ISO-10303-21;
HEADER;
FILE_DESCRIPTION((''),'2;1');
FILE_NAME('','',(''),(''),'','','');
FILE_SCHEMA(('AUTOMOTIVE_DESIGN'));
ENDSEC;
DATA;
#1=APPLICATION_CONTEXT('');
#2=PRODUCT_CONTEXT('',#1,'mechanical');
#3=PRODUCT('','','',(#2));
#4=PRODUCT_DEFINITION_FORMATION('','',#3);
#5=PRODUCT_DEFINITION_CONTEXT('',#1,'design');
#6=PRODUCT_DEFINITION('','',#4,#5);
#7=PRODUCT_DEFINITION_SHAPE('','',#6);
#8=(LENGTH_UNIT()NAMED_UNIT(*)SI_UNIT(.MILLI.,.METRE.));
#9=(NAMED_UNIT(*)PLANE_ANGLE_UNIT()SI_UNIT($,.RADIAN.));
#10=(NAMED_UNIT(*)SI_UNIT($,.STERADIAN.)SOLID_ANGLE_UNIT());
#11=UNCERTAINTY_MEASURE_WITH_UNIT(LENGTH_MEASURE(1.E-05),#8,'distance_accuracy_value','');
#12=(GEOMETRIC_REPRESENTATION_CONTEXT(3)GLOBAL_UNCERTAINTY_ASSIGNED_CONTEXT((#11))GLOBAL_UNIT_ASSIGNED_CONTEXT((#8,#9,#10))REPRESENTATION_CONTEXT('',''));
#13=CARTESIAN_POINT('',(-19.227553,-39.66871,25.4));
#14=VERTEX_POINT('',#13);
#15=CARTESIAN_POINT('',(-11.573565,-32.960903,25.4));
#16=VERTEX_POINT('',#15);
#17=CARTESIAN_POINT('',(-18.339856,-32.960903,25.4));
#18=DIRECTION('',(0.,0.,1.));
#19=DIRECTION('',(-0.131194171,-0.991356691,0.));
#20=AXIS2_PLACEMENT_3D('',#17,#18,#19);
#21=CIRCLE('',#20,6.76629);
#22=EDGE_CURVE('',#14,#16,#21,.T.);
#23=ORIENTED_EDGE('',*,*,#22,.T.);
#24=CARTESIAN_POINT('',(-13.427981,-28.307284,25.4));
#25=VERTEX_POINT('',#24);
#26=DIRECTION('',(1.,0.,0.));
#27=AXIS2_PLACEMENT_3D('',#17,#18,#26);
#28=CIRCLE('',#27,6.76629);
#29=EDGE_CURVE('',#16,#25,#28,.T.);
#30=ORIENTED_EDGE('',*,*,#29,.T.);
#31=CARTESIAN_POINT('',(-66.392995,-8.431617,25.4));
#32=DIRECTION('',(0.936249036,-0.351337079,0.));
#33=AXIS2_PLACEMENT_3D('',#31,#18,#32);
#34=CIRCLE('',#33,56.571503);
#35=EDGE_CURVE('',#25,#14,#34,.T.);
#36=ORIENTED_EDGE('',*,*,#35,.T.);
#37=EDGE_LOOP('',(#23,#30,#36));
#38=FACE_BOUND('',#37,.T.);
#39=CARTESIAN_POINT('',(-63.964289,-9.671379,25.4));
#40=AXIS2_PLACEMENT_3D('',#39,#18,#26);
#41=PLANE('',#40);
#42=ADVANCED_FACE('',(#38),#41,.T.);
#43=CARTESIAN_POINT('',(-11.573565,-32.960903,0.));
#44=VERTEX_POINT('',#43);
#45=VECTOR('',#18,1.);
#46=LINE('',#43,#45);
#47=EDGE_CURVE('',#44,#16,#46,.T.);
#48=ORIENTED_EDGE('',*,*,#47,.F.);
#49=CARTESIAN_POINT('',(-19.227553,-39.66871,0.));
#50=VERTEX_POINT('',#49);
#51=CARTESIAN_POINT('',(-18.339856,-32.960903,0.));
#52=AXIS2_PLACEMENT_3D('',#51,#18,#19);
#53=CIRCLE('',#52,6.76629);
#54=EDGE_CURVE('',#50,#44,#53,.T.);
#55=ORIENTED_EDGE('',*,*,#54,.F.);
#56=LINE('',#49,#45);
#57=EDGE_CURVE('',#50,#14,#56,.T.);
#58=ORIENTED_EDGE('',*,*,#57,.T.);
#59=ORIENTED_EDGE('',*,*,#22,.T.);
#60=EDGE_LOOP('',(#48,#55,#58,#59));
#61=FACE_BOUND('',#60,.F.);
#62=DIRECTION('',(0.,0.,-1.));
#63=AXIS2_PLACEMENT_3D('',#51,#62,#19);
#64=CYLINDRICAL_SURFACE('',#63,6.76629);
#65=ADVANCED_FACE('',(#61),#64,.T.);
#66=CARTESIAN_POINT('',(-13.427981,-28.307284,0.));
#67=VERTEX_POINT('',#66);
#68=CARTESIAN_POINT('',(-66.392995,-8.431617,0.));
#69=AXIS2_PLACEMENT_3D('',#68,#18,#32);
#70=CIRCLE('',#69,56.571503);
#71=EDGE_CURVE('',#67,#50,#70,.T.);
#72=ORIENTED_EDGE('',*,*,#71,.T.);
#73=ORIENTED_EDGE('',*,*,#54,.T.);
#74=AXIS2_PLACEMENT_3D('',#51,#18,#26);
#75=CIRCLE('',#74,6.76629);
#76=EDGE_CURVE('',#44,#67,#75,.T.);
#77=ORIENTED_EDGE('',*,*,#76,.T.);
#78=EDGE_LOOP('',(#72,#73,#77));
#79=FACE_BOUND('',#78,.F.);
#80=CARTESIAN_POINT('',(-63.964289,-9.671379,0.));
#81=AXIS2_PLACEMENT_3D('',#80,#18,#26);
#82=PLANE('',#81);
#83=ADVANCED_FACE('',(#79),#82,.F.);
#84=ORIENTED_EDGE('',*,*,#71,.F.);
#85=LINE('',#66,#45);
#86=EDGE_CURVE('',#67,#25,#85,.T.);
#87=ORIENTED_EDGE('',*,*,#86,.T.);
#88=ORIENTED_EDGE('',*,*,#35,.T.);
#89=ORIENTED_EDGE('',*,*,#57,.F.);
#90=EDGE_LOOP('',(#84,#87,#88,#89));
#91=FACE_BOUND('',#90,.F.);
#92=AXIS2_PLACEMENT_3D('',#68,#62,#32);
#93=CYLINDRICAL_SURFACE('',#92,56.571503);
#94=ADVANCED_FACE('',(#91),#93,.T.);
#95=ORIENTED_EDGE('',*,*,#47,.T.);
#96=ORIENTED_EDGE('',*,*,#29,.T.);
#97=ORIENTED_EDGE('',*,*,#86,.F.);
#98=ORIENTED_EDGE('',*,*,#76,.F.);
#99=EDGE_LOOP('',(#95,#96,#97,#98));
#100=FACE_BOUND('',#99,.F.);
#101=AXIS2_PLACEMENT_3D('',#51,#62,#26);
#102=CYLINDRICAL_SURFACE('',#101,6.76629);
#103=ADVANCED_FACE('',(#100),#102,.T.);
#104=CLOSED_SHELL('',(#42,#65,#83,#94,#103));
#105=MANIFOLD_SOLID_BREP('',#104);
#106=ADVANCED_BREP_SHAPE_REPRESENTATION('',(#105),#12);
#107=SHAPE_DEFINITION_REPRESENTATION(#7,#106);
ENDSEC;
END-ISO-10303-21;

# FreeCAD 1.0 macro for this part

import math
import FreeCAD as App
import Part
import Sketcher
Q = App.Units.Quantity

doc = App.newDocument("Part")
body = doc.addObject("PartDesign::Body", "Body")

# Sketch on XY plane
sketch1 = doc.addObject("Sketcher::SketchObject", "Sketch")
body.addObject(sketch1)
sketch1.AttachmentSupport = (doc.XY_Plane, [""])
sketch1.MapMode = "FlatFace"
sketch1.addGeometry(Part.ArcOfCircle(Part.Circle(App.Vector(-66, -8, 0), App.Vector(0, 0, 1), 57), math.radians(-21), math.radians(326)), False)
sketch1.addGeometry(Part.ArcOfCircle(Part.Circle(App.Vector(-18, -33, 0), App.Vector(0, 0, 1), 7), math.radians(-98), math.radians(0)), False)
sketch1.addGeometry(Part.ArcOfCircle(Part.Circle(App.Vector(-18, -33, 0), App.Vector(0, 0, 1), 7), math.radians(0), math.radians(43)), False)
sketch1.addConstraint(Sketcher.Constraint("Coincident", 0, 2, 1, 1))
sketch1.addConstraint(Sketcher.Constraint("Tangent", 1, 2, 2, 1))
sketch1.addConstraint(Sketcher.Constraint("Coincident", 2, 2, 0, 1))
sketch1.addConstraint(Sketcher.Constraint("Equal", 1, 2))
sketch1.addConstraint(Sketcher.Constraint("Horizontal", 2, 3, 1, 2))
sketch1.addConstraint(Sketcher.Constraint("Radius", 1, 6.76629))
sketch1.addConstraint(Sketcher.Constraint("Radius", 0, 56.571503))
sketch1.addConstraint(Sketcher.Constraint("DistanceY", 0, 2, -1, 1, 39.66871))
sketch1.addConstraint(Sketcher.Constraint("DistanceX", 2, 2, -1, 1, 13.427981))
sketch1.addConstraint(Sketcher.Constraint("DistanceX", 0, 3, 1, 3, 48.05314))
sketch1.addConstraint(Sketcher.Constraint("DistanceX", 0, 3, 0, 2, 47.165442))
pad1 = doc.addObject("PartDesign::Pad", "Pad")
body.addObject(pad1)
pad1.Profile = sketch1
pad1.Length = Q("1 in")

doc.recompute()
